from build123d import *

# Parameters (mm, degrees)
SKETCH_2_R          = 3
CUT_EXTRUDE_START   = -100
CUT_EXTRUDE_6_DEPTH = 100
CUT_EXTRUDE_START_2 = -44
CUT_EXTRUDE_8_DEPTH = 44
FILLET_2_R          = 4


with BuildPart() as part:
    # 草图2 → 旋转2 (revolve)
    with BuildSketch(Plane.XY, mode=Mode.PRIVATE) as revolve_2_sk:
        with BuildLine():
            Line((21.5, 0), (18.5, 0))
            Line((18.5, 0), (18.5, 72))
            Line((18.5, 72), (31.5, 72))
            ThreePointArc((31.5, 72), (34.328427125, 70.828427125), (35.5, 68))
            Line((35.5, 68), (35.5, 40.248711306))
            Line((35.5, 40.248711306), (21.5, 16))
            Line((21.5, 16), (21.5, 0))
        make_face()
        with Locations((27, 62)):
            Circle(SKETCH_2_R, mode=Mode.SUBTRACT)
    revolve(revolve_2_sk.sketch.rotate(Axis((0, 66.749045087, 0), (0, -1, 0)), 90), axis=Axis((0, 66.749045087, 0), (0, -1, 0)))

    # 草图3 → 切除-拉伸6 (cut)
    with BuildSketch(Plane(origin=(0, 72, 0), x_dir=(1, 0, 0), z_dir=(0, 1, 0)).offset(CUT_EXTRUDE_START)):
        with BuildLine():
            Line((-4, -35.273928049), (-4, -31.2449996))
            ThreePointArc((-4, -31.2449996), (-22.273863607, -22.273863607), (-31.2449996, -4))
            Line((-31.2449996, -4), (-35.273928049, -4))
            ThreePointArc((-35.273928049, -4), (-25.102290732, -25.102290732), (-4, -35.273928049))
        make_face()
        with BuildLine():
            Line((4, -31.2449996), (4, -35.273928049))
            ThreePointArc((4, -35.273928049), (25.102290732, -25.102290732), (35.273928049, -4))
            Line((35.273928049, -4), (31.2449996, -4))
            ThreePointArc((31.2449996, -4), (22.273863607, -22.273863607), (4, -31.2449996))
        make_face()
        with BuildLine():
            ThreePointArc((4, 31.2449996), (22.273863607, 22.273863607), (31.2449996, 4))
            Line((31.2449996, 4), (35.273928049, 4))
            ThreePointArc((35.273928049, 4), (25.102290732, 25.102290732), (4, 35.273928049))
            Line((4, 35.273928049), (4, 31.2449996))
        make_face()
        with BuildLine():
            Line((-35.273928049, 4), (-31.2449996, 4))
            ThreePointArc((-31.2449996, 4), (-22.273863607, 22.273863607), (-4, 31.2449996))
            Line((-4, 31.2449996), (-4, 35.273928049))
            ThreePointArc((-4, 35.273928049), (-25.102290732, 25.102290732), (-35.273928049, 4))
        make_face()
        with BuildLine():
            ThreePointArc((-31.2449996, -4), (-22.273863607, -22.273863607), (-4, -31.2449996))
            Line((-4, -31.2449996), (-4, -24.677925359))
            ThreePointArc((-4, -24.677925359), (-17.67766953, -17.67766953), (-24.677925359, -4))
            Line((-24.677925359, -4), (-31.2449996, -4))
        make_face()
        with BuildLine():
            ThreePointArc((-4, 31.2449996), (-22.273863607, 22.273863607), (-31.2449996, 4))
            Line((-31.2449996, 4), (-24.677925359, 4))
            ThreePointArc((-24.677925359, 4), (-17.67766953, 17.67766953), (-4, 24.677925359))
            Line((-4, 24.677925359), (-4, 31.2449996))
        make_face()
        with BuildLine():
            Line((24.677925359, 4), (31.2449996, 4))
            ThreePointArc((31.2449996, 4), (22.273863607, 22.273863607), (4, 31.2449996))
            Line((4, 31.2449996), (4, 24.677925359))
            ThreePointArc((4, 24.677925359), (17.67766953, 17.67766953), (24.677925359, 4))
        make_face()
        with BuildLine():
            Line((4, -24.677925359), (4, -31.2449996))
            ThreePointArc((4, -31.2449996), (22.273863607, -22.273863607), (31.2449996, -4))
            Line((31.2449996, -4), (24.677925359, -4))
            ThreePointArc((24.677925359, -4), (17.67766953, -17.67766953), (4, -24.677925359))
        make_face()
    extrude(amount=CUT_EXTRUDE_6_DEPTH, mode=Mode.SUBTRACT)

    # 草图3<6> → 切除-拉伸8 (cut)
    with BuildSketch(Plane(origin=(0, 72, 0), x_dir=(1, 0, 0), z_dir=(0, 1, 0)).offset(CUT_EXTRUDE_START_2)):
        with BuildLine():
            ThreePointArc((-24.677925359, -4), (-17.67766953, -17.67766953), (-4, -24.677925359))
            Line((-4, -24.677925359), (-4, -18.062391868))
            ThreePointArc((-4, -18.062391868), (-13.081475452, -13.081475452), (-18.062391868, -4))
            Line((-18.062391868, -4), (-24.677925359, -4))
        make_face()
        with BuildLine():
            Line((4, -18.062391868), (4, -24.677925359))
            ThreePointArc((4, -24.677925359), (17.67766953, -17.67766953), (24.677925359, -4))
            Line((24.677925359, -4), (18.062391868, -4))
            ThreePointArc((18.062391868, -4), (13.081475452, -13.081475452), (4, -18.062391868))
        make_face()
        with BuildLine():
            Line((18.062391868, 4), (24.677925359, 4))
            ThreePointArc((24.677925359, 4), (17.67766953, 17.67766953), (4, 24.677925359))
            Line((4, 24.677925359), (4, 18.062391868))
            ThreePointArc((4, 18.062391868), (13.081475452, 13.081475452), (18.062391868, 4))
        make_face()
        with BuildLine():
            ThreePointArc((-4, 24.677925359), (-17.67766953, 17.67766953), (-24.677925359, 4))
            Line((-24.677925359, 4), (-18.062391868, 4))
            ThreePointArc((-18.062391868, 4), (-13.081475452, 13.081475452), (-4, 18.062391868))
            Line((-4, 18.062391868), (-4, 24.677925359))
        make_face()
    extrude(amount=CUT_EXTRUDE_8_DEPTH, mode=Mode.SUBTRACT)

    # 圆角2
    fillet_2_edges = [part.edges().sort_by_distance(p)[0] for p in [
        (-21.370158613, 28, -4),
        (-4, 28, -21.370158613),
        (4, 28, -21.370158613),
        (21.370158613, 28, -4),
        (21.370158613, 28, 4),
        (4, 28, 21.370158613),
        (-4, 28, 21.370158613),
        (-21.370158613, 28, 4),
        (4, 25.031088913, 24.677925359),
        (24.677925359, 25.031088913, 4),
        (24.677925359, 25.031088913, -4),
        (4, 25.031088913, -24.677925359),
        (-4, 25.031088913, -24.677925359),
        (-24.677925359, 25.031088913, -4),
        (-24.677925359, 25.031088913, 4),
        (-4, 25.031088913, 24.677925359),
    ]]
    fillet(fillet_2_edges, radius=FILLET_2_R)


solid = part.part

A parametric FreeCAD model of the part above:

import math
import FreeCAD as App
import Part
import Sketcher
Q = App.Units.Quantity


def edges_at(feature, points):
    """Names of the edges that pass closest to the given points."""
    edges = feature.Shape.Edges
    near = lambda p: min(range(len(edges)), key=lambda i: edges[i].distToShape(Part.Vertex(*p))[0])
    return sorted({f"Edge{near(p) + 1}" for p in points})

doc = App.newDocument("Part")
body = doc.addObject("PartDesign::Body", "Body")

sketch1 = body.newObject("Sketcher::SketchObject", "Sketch")
sketch1.AttachmentSupport = (doc.getObject("XY_Plane"), [""])
sketch1.MapMode = "FlatFace"
sketch1.addGeometry(Part.LineSegment(App.Vector(18.5, 0, 0), App.Vector(21.5, 0, 0)), False)
sketch1.addGeometry(Part.LineSegment(App.Vector(21.5, 0, 0), App.Vector(21.5, 16, 0)), False)
sketch1.addGeometry(Part.LineSegment(App.Vector(21.5, 16, 0), App.Vector(35.5, 40.2, 0)), False)
sketch1.addGeometry(Part.LineSegment(App.Vector(35.5, 40.2, 0), App.Vector(35.5, 68, 0)), False)
sketch1.addGeometry(Part.ArcOfCircle(Part.Circle(App.Vector(31.5, 68, 0), App.Vector(0, 0, 1), 4), math.radians(0), math.radians(90)), False)
sketch1.addGeometry(Part.LineSegment(App.Vector(31.5, 72, 0), App.Vector(18.5, 72, 0)), False)
sketch1.addGeometry(Part.LineSegment(App.Vector(18.5, 72, 0), App.Vector(18.5, 0, 0)), False)
sketch1.addGeometry(Part.Circle(App.Vector(27, 62, 0), App.Vector(0, 0, 1), 3), False)
sketch1.addConstraint(Sketcher.Constraint("Coincident", 0, 2, 1, 1))
sketch1.addConstraint(Sketcher.Constraint("Coincident", 1, 2, 2, 1))
sketch1.addConstraint(Sketcher.Constraint("Coincident", 2, 2, 3, 1))
sketch1.addConstraint(Sketcher.Constraint("Tangent", 3, 2, 4, 1))
sketch1.addConstraint(Sketcher.Constraint("Tangent", 4, 2, 5, 1))
sketch1.addConstraint(Sketcher.Constraint("Coincident", 5, 2, 6, 1))
sketch1.addConstraint(Sketcher.Constraint("Coincident", 6, 2, 0, 1))
sketch1.addConstraint(Sketcher.Constraint("Horizontal", 0))
sketch1.addConstraint(Sketcher.Constraint("Vertical", 1))
sketch1.addConstraint(Sketcher.Constraint("Vertical", 3))
sketch1.addConstraint(Sketcher.Constraint("Horizontal", 5))
sketch1.addConstraint(Sketcher.Constraint("Vertical", 6))
sketch1.addConstraint(Sketcher.Constraint("PointOnObject", 0, 2, -1))
sketch1.addConstraint(Sketcher.Constraint("Diameter", 7, 6.0))
sketch1.addConstraint(Sketcher.Constraint("Radius", 4, 4.0))
sketch1.addConstraint(Sketcher.Constraint("DistanceX", 0, 1, 0, 2, 3.0))
sketch1.addConstraint(Sketcher.Constraint("DistanceX", 5, 2, 5, 1, 13.0))
sketch1.addConstraint(Sketcher.Constraint("DistanceY", 1, 1, 1, 2, 16.0))
sketch1.addConstraint(Sketcher.Constraint("DistanceY", 6, 2, 6, 1, 72.0))
sketch1.addConstraint(Sketcher.Constraint("Angle", 2, Q("60 deg")))
sketch1.addConstraint(Sketcher.Constraint("DistanceX", -1, 1, 7, 3, 27.0))
sketch1.addConstraint(Sketcher.Constraint("DistanceY", -1, 1, 7, 3, 62.0))
sketch1.addConstraint(Sketcher.Constraint("DistanceX", -1, 1, 4, 3, 31.5))
revolution = body.newObject("PartDesign::Revolution", "Revolution")
revolution.Profile = sketch1
revolution.ReferenceAxis = (sketch1, ["V_Axis"])
revolution.Angle = 360

sketch2 = body.newObject("Sketcher::SketchObject", "Sketch001")
sketch2.AttachmentSupport = (doc.getObject("XZ_Plane"), [""])
sketch2.MapMode = "FlatFace"
sketch2.AttachmentOffset = App.Placement(App.Vector(0, 0, 28), App.Rotation())
sketch2.addGeometry(Part.LineSegment(App.Vector(-4, 35, 0), App.Vector(-4, 25, 0)), False)
sketch2.addGeometry(Part.ArcOfCircle(Part.Circle(App.Vector(0, 0, 0), App.Vector(0, 0, 1), 25), math.radians(99), math.radians(171)), False)
sketch2.addGeometry(Part.LineSegment(App.Vector(-25, 4, 0), App.Vector(-35, 4, 0)), False)
sketch2.addGeometry(Part.ArcOfCircle(Part.Circle(App.Vector(0, 0, 0), App.Vector(0, 0, 1), 36), math.radians(96), math.radians(174)), False)
sketch2.addGeometry(Part.ArcOfCircle(Part.Circle(App.Vector(0, 0, 0), App.Vector(0, 0, 1), 36), math.radians(6), math.radians(84)), False)
sketch2.addGeometry(Part.LineSegment(App.Vector(35, 4, 0), App.Vector(25, 4, 0)), False)
sketch2.addGeometry(Part.ArcOfCircle(Part.Circle(App.Vector(0, 0, 0), App.Vector(0, 0, 1), 25), math.radians(9), math.radians(81)), False)
sketch2.addGeometry(Part.LineSegment(App.Vector(4, 25, 0), App.Vector(4, 35, 0)), False)
sketch2.addGeometry(Part.ArcOfCircle(Part.Circle(App.Vector(0, 0, 0), App.Vector(0, 0, 1), 36), math.radians(-84), math.radians(-6)), False)
sketch2.addGeometry(Part.LineSegment(App.Vector(4, -35, 0), App.Vector(4, -25, 0)), False)
sketch2.addGeometry(Part.ArcOfCircle(Part.Circle(App.Vector(0, 0, 0), App.Vector(0, 0, 1), 25), math.radians(-81), math.radians(-9)), False)
sketch2.addGeometry(Part.LineSegment(App.Vector(25, -4, 0), App.Vector(35, -4, 0)), False)
sketch2.addGeometry(Part.LineSegment(App.Vector(-35, -4, 0), App.Vector(-25, -4, 0)), False)
sketch2.addGeometry(Part.ArcOfCircle(Part.Circle(App.Vector(0, 0, 0), App.Vector(0, 0, 1), 25), math.radians(-171), math.radians(-99)), False)
sketch2.addGeometry(Part.LineSegment(App.Vector(-4, -25, 0), App.Vector(-4, -35, 0)), False)
sketch2.addGeometry(Part.ArcOfCircle(Part.Circle(App.Vector(0, 0, 0), App.Vector(0, 0, 1), 36), math.radians(-174), math.radians(-96)), False)
sketch2.addConstraint(Sketcher.Constraint("Coincident", 0, 2, 1, 1))
sketch2.addConstraint(Sketcher.Constraint("Coincident", 1, 2, 2, 1))
sketch2.addConstraint(Sketcher.Constraint("Coincident", 2, 2, 3, 2))
sketch2.addConstraint(Sketcher.Constraint("Coincident", 3, 1, 0, 1))
sketch2.addConstraint(Sketcher.Constraint("Coincident", 4, 1, 5, 1))
sketch2.addConstraint(Sketcher.Constraint("Coincident", 5, 2, 6, 1))
sketch2.addConstraint(Sketcher.Constraint("Coincident", 6, 2, 7, 1))
sketch2.addConstraint(Sketcher.Constraint("Coincident", 7, 2, 4, 2))
sketch2.addConstraint(Sketcher.Constraint("Coincident", 8, 1, 9, 1))
sketch2.addConstraint(Sketcher.Constraint("Coincident", 9, 2, 10, 1))
sketch2.addConstraint(Sketcher.Constraint("Coincident", 10, 2, 11, 1))
sketch2.addConstraint(Sketcher.Constraint("Coincident", 11, 2, 8, 2))
sketch2.addConstraint(Sketcher.Constraint("Coincident", 12, 2, 13, 1))
sketch2.addConstraint(Sketcher.Constraint("Coincident", 13, 2, 14, 1))
sketch2.addConstraint(Sketcher.Constraint("Coincident", 14, 2, 15, 2))
sketch2.addConstraint(Sketcher.Constraint("Coincident", 15, 1, 12, 1))
sketch2.addConstraint(Sketcher.Constraint("Vertical", 0))
sketch2.addConstraint(Sketcher.Constraint("Horizontal", 2))
sketch2.addConstraint(Sketcher.Constraint("Horizontal", 5))
sketch2.addConstraint(Sketcher.Constraint("Vertical", 7))
sketch2.addConstraint(Sketcher.Constraint("Vertical", 9))
sketch2.addConstraint(Sketcher.Constraint("Horizontal", 11))
sketch2.addConstraint(Sketcher.Constraint("Horizontal", 12))
sketch2.addConstraint(Sketcher.Constraint("Vertical", 14))
sketch2.addConstraint(Sketcher.Constraint("Coincident", 1, 3, -1, 1))
sketch2.addConstraint(Sketcher.Constraint("Coincident", 3, 3, -1, 1))
sketch2.addConstraint(Sketcher.Constraint("Coincident", 4, 3, -1, 1))
sketch2.addConstraint(Sketcher.Constraint("Coincident", 6, 3, -1, 1))
sketch2.addConstraint(Sketcher.Constraint("Coincident", 8, 3, -1, 1))
sketch2.addConstraint(Sketcher.Constraint("Coincident", 10, 3, -1, 1))
sketch2.addConstraint(Sketcher.Constraint("Coincident", 13, 3, -1, 1))
sketch2.addConstraint(Sketcher.Constraint("Coincident", 15, 3, -1, 1))
sketch2.addConstraint(Sketcher.Constraint("Equal", 3, 4))
sketch2.addConstraint(Sketcher.Constraint("Equal", 1, 6))
sketch2.addConstraint(Sketcher.Constraint("Equal", 4, 8))
sketch2.addConstraint(Sketcher.Constraint("Equal", 6, 10))
sketch2.addConstraint(Sketcher.Constraint("Equal", 10, 13))
sketch2.addConstraint(Sketcher.Constraint("Equal", 8, 15))
sketch2.addConstraint(Sketcher.Constraint("Horizontal", 2, 2, 4, 1))
sketch2.addConstraint(Sketcher.Constraint("Horizontal", 0, 2, 6, 2))
sketch2.addConstraint(Sketcher.Constraint("Horizontal", 11, 2, 12, 2))
sketch2.addConstraint(Sketcher.Constraint("Horizontal", 9, 2, 13, 2))
sketch2.addConstraint(Sketcher.Constraint("Vertical", 7, 2, 8, 1))
sketch2.addConstraint(Sketcher.Constraint("Vertical", 5, 2, 10, 2))
sketch2.addConstraint(Sketcher.Constraint("Equal", 12, 0))
sketch2.addConstraint(Sketcher.Constraint("Radius", 1, 25.0))
sketch2.addConstraint(Sketcher.Constraint("Radius", 3, 35.5))
sketch2.addConstraint(Sketcher.Constraint("DistanceX", 0, 2, -1, 1, 4.0))
pocket1 = body.newObject("PartDesign::Pocket", "Pocket")
pocket1.Profile = sketch2
pocket1.Length = 100

sketch3 = body.newObject("Sketcher::SketchObject", "Sketch002")
sketch3.AttachmentSupport = (doc.getObject("XZ_Plane"), [""])
sketch3.MapMode = "FlatFace"
sketch3.AttachmentOffset = App.Placement(App.Vector(0, 0, -28), App.Rotation())
sketch3.addGeometry(Part.ArcOfCircle(Part.Circle(App.Vector(0, 0, 0), App.Vector(0, 0, 1), 25), math.radians(99), math.radians(171)), False)
sketch3.addGeometry(Part.LineSegment(App.Vector(-4, 25, 0), App.Vector(-4, 18, 0)), False)
sketch3.addGeometry(Part.ArcOfCircle(Part.Circle(App.Vector(0, 0, 0), App.Vector(0, 0, 1), 18), math.radians(102), math.radians(168)), False)
sketch3.addGeometry(Part.LineSegment(App.Vector(-18, 4, 0), App.Vector(-25, 4, 0)), False)
sketch3.addGeometry(Part.LineSegment(App.Vector(4, 18, 0), App.Vector(4, 25, 0)), False)
sketch3.addGeometry(Part.ArcOfCircle(Part.Circle(App.Vector(0, 0, 0), App.Vector(0, 0, 1), 25), math.radians(9), math.radians(81)), False)
sketch3.addGeometry(Part.LineSegment(App.Vector(25, 4, 0), App.Vector(18, 4, 0)), False)
sketch3.addGeometry(Part.ArcOfCircle(Part.Circle(App.Vector(0, 0, 0), App.Vector(0, 0, 1), 18), math.radians(12), math.radians(78)), False)
sketch3.addGeometry(Part.LineSegment(App.Vector(18, -4, 0), App.Vector(25, -4, 0)), False)
sketch3.addGeometry(Part.ArcOfCircle(Part.Circle(App.Vector(0, 0, 0), App.Vector(0, 0, 1), 25), math.radians(-81), math.radians(-9)), False)
sketch3.addGeometry(Part.LineSegment(App.Vector(4, -25, 0), App.Vector(4, -18, 0)), False)
sketch3.addGeometry(Part.ArcOfCircle(Part.Circle(App.Vector(0, 0, 0), App.Vector(0, 0, 1), 18), math.radians(-78), math.radians(-12)), False)
sketch3.addGeometry(Part.ArcOfCircle(Part.Circle(App.Vector(0, 0, 0), App.Vector(0, 0, 1), 25), math.radians(-171), math.radians(-99)), False)
sketch3.addGeometry(Part.LineSegment(App.Vector(-25, -4, 0), App.Vector(-18, -4, 0)), False)
sketch3.addGeometry(Part.ArcOfCircle(Part.Circle(App.Vector(0, 0, 0), App.Vector(0, 0, 1), 18), math.radians(-168), math.radians(-102)), False)
sketch3.addGeometry(Part.LineSegment(App.Vector(-4, -18, 0), App.Vector(-4, -25, 0)), False)
sketch3.addConstraint(Sketcher.Constraint("Coincident", 0, 1, 1, 1))
sketch3.addConstraint(Sketcher.Constraint("Coincident", 1, 2, 2, 1))
sketch3.addConstraint(Sketcher.Constraint("Coincident", 2, 2, 3, 1))
sketch3.addConstraint(Sketcher.Constraint("Coincident", 3, 2, 0, 2))
sketch3.addConstraint(Sketcher.Constraint("Coincident", 4, 2, 5, 2))
sketch3.addConstraint(Sketcher.Constraint("Coincident", 5, 1, 6, 1))
sketch3.addConstraint(Sketcher.Constraint("Coincident", 6, 2, 7, 1))
sketch3.addConstraint(Sketcher.Constraint("Coincident", 7, 2, 4, 1))
sketch3.addConstraint(Sketcher.Constraint("Coincident", 8, 2, 9, 2))
sketch3.addConstraint(Sketcher.Constraint("Coincident", 9, 1, 10, 1))
sketch3.addConstraint(Sketcher.Constraint("Coincident", 10, 2, 11, 1))
sketch3.addConstraint(Sketcher.Constraint("Coincident", 11, 2, 8, 1))
sketch3.addConstraint(Sketcher.Constraint("Coincident", 12, 1, 13, 1))
sketch3.addConstraint(Sketcher.Constraint("Coincident", 13, 2, 14, 1))
sketch3.addConstraint(Sketcher.Constraint("Coincident", 14, 2, 15, 1))
sketch3.addConstraint(Sketcher.Constraint("Coincident", 15, 2, 12, 2))
sketch3.addConstraint(Sketcher.Constraint("Vertical", 1))
sketch3.addConstraint(Sketcher.Constraint("Horizontal", 3))
sketch3.addConstraint(Sketcher.Constraint("Vertical", 4))
sketch3.addConstraint(Sketcher.Constraint("Horizontal", 6))
sketch3.addConstraint(Sketcher.Constraint("Horizontal", 8))
sketch3.addConstraint(Sketcher.Constraint("Vertical", 10))
sketch3.addConstraint(Sketcher.Constraint("Horizontal", 13))
sketch3.addConstraint(Sketcher.Constraint("Vertical", 15))
sketch3.addConstraint(Sketcher.Constraint("Coincident", 0, 3, -1, 1))
sketch3.addConstraint(Sketcher.Constraint("Coincident", 2, 3, -1, 1))
sketch3.addConstraint(Sketcher.Constraint("Coincident", 5, 3, -1, 1))
sketch3.addConstraint(Sketcher.Constraint("Coincident", 7, 3, -1, 1))
sketch3.addConstraint(Sketcher.Constraint("Coincident", 9, 3, -1, 1))
sketch3.addConstraint(Sketcher.Constraint("Coincident", 11, 3, -1, 1))
sketch3.addConstraint(Sketcher.Constraint("Coincident", 12, 3, -1, 1))
sketch3.addConstraint(Sketcher.Constraint("Coincident", 14, 3, -1, 1))
sketch3.addConstraint(Sketcher.Constraint("Equal", 0, 5))
sketch3.addConstraint(Sketcher.Constraint("Equal", 2, 7))
sketch3.addConstraint(Sketcher.Constraint("Equal", 5, 9))
sketch3.addConstraint(Sketcher.Constraint("Equal", 7, 11))
sketch3.addConstraint(Sketcher.Constraint("Equal", 9, 12))
sketch3.addConstraint(Sketcher.Constraint("Equal", 11, 14))
sketch3.addConstraint(Sketcher.Constraint("Horizontal", 0, 1, 4, 2))
sketch3.addConstraint(Sketcher.Constraint("Horizontal", 3, 2, 5, 1))
sketch3.addConstraint(Sketcher.Constraint("Horizontal", 11, 2, 12, 1))
sketch3.addConstraint(Sketcher.Constraint("Horizontal", 10, 2, 14, 2))
sketch3.addConstraint(Sketcher.Constraint("Vertical", 5, 1, 8, 2))
sketch3.addConstraint(Sketcher.Constraint("Vertical", 7, 2, 9, 1))
sketch3.addConstraint(Sketcher.Constraint("Equal", 13, 1))
sketch3.addConstraint(Sketcher.Constraint("Radius", 0, 25.0))
sketch3.addConstraint(Sketcher.Constraint("Radius", 2, 18.5))
sketch3.addConstraint(Sketcher.Constraint("DistanceX", 0, 1, -1, 1, 4.0))
pocket2 = body.newObject("PartDesign::Pocket", "Pocket001")
pocket2.Profile = sketch3
pocket2.Length = 44
doc.recompute()

fillet = body.newObject("PartDesign::Fillet", "Fillet")
fillet.Base = (pocket2, edges_at(pocket2, [
    (-21.37, 28, -4),
    (-4, 28, -21.37),
    (4, 28, -21.37),
    (21.37, 28, -4),
    (21.37, 28, 4),
    (4, 28, 21.37),
    (-4, 28, 21.37),
    (-21.37, 28, 4),
    (4, 25.031, 24.678),
    (24.678, 25.031, 4),
    (24.678, 25.031, -4),
    (4, 25.031, -24.678),
    (-4, 25.031, -24.678),
    (-24.678, 25.031, -4),
    (-24.678, 25.031, 4),
    (-4, 25.031, 24.678),
]))
fillet.Radius = 4

doc.recompute()
